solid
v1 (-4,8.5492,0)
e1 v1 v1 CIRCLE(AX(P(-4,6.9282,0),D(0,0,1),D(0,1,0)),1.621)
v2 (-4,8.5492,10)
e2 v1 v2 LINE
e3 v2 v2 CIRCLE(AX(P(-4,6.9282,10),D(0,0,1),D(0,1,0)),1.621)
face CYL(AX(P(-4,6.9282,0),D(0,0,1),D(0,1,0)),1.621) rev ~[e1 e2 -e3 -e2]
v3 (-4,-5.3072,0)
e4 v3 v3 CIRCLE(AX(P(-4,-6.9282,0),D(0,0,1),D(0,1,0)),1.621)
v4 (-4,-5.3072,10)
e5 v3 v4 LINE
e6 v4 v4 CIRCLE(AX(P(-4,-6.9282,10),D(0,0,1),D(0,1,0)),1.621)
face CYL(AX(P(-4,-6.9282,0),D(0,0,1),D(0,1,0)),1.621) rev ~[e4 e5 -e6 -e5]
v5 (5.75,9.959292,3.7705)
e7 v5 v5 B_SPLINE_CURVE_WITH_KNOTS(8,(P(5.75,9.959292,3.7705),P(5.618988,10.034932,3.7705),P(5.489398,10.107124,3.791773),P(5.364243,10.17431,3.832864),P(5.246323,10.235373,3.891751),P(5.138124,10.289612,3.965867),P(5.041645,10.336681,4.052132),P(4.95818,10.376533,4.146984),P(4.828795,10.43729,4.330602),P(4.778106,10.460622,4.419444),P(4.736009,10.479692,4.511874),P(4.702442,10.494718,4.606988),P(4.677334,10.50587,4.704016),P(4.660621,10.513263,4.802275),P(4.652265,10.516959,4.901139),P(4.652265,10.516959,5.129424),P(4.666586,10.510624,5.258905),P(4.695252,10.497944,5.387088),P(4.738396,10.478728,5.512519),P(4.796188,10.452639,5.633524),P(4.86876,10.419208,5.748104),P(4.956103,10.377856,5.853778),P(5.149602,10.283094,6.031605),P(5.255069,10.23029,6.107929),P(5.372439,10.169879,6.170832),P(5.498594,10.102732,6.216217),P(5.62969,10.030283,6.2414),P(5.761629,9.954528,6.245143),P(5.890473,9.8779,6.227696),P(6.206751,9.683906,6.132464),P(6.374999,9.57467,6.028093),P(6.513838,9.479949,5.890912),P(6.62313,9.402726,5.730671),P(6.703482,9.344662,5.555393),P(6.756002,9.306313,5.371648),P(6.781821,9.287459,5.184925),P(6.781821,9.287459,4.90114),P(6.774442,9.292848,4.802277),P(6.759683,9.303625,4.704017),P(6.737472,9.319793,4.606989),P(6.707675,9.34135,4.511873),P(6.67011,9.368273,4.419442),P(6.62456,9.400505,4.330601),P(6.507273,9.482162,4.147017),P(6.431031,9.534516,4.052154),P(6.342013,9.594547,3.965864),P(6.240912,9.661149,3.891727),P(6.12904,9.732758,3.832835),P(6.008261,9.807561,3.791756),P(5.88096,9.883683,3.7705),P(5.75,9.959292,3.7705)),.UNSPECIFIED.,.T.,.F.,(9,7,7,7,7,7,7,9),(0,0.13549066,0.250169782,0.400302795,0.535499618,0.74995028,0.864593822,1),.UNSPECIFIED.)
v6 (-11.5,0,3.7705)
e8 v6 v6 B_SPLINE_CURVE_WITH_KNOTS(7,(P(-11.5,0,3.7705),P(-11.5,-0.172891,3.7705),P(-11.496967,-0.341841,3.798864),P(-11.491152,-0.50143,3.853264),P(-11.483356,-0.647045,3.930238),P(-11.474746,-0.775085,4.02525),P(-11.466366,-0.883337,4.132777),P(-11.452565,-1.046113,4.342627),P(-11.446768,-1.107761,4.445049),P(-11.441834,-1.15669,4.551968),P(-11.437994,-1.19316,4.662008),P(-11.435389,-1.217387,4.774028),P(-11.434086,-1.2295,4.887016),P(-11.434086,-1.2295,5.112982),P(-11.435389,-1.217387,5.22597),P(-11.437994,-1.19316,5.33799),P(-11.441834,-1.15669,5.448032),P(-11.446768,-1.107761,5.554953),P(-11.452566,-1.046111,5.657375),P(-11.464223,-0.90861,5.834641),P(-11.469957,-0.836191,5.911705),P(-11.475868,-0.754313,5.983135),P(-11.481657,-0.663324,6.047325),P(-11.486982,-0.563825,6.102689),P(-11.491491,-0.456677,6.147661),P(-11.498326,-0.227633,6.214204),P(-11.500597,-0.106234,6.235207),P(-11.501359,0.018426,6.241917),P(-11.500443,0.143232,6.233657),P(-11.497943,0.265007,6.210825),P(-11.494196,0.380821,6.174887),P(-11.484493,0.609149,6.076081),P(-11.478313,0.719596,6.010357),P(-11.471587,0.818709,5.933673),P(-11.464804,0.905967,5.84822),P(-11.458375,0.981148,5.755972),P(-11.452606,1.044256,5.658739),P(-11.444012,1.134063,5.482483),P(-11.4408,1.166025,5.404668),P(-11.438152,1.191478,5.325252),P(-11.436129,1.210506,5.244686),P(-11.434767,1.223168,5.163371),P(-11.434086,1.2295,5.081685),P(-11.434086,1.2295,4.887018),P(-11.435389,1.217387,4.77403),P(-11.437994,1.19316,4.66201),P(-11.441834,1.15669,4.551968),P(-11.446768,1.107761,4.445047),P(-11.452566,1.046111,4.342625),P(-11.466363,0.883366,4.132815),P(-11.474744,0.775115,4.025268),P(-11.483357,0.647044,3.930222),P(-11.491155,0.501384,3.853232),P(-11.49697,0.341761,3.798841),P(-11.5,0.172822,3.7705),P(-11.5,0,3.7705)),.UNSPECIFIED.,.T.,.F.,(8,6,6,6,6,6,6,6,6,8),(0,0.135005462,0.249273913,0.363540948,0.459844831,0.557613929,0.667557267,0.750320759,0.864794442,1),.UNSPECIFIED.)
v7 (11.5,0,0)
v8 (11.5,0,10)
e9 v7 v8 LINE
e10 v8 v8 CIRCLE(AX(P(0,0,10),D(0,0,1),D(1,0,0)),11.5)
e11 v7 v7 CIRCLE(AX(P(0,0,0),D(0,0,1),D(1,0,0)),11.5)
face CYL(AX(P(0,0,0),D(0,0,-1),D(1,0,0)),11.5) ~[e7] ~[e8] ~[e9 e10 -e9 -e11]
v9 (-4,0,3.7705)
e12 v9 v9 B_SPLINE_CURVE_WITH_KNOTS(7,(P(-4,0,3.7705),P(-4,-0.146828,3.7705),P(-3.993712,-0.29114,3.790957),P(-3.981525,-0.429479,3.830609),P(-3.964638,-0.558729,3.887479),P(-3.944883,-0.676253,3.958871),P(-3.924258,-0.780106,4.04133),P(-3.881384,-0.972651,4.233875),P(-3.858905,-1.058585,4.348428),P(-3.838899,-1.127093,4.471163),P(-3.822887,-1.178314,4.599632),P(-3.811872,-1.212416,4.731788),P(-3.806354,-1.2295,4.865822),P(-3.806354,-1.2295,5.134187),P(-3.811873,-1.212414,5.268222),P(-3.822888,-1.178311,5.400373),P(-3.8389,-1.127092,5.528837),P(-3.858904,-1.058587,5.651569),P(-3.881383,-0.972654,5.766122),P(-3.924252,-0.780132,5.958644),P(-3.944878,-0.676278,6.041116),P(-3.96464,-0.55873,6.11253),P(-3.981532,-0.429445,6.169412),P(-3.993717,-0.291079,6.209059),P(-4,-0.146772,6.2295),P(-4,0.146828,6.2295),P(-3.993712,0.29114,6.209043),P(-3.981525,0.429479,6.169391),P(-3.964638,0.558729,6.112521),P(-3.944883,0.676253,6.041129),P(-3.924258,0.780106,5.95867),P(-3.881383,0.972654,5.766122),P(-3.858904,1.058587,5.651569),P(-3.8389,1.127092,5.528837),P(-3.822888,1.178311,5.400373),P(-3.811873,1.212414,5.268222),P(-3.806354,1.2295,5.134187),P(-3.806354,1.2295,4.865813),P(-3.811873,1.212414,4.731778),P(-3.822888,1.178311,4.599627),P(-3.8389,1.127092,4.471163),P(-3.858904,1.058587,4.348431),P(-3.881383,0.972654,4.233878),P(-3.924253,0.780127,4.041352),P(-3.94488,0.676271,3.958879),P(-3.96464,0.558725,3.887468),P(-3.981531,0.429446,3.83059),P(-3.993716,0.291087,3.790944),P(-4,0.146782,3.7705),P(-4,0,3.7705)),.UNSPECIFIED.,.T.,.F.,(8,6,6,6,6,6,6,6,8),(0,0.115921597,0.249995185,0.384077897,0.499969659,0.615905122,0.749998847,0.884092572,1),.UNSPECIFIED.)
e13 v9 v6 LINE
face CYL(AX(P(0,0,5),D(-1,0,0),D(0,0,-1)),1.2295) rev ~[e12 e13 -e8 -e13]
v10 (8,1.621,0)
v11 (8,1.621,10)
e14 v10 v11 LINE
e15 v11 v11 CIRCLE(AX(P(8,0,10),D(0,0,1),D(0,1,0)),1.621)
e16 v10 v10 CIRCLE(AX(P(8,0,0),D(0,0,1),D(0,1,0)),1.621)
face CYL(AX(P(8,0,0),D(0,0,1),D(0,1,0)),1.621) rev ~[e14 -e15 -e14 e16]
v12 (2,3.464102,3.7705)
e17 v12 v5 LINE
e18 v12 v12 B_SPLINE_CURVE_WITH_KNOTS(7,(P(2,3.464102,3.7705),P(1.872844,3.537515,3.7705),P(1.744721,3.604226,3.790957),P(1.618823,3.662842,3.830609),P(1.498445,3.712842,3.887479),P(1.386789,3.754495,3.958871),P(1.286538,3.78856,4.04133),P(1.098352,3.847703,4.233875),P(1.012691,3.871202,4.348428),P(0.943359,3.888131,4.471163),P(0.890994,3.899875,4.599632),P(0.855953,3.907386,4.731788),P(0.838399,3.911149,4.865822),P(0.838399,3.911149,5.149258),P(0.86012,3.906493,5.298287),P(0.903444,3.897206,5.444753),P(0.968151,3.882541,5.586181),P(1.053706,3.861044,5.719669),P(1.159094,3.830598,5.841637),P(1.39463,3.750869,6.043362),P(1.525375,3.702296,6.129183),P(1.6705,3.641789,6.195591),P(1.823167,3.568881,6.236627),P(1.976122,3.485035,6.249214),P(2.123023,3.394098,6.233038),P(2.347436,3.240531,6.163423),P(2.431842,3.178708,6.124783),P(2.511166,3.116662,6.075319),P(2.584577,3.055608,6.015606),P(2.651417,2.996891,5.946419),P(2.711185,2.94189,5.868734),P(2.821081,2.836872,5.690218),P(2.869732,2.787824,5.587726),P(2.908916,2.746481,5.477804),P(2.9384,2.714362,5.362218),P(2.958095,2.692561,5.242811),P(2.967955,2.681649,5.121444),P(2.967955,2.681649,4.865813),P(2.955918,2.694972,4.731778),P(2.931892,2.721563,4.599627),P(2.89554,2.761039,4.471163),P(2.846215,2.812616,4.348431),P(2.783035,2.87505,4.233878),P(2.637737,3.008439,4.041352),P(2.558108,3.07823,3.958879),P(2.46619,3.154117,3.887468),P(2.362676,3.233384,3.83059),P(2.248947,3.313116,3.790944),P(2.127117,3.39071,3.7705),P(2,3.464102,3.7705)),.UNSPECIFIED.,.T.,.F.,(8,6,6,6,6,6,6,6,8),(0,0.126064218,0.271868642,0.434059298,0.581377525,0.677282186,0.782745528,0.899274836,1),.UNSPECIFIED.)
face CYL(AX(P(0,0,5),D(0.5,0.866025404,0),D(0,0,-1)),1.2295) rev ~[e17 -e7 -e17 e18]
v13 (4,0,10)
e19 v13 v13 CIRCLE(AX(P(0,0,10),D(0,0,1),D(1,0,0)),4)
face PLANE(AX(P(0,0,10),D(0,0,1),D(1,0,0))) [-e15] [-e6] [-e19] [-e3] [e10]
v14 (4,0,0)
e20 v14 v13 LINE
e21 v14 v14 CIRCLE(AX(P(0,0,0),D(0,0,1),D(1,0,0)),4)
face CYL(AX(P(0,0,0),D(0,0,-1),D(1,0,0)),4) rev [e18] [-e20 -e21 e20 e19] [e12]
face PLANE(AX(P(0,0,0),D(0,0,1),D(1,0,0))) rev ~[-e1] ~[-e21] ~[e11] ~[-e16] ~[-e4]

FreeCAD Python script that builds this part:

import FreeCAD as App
import Part
import Sketcher
Q = App.Units.Quantity

doc = App.newDocument("Part")
body = doc.addObject("PartDesign::Body", "Body")

# Sketch on XY plane
sketch1 = doc.addObject("Sketcher::SketchObject", "Sketch")
body.addObject(sketch1)
sketch1.AttachmentSupport = (doc.XY_Plane, [""])
sketch1.MapMode = "FlatFace"
sketch1.addGeometry(Part.Circle(App.Vector(0, 0, 0), App.Vector(0, 0, 1), 11.5), False)
sketch1.addGeometry(Part.Circle(App.Vector(0, 0, 0), App.Vector(0, 0, 1), 4), False)
sketch1.addConstraint(Sketcher.Constraint("Coincident", 0, 3, -1, 1))
sketch1.addConstraint(Sketcher.Constraint("Coincident", 1, 3, -1, 1))
sketch1.addConstraint(Sketcher.Constraint("Diameter", 0, Q("23 mm")))
sketch1.addConstraint(Sketcher.Constraint("Diameter", 1, Q("8 mm")))
pad1 = doc.addObject("PartDesign::Pad", "Pad")
body.addObject(pad1)
pad1.Profile = sketch1
pad1.Length = 10

# Sketch on XY plane
sketch2 = doc.addObject("Sketcher::SketchObject", "Sketch001")
body.addObject(sketch2)
sketch2.AttachmentSupport = (doc.XY_Plane, [""])
sketch2.MapMode = "FlatFace"
sketch2.addGeometry(Part.Circle(App.Vector(8, 0, 0), App.Vector(0, 0, 1), 1.6), False)
sketch2.addGeometry(Part.Circle(App.Vector(-4, 6.9, 0), App.Vector(0, 0, 1), 1.6), False)
sketch2.addGeometry(Part.Circle(App.Vector(-4, -6.9, 0), App.Vector(0, 0, 1), 1.6), False)
sketch2.addConstraint(Sketcher.Constraint("Equal", 0, 1))
sketch2.addConstraint(Sketcher.Constraint("Equal", 1, 2))
sketch2.addConstraint(Sketcher.Constraint("Symmetric", 1, 3, 2, 3, -1))
sketch2.addConstraint(Sketcher.Constraint("PointOnObject", 0, 3, -1))
sketch2.addConstraint(Sketcher.Constraint("Diameter", 0, Q("3.242 mm")))
sketch2.addConstraint(Sketcher.Constraint("DistanceX", -1, 1, 0, 3, Q("8 mm")))
sketch2.addConstraint(Sketcher.Constraint("DistanceX", 1, 3, -1, 1, Q("4 mm")))
sketch2.addConstraint(Sketcher.Constraint("DistanceY", -1, 1, 1, 3, Q("6.9282 mm")))
doc.recompute()
hole = doc.addObject("PartDesign::Hole", "Hole")
body.addObject(hole)
hole.Profile = sketch2
hole.ThreadType = "None"
hole.Diameter = 3.242
hole.DepthType = "Dimension"
hole.Depth = 15
hole.DrillPoint = "Angled"
hole.DrillPointAngle = 118
hole.Reversed = True

# Sketch on YZ plane
sketch3 = doc.addObject("Sketcher::SketchObject", "Sketch002")
body.addObject(sketch3)
sketch3.AttachmentSupport = (doc.YZ_Plane, [""])
sketch3.MapMode = "FlatFace"
sketch3.addGeometry(Part.Circle(App.Vector(0, 5, 0), App.Vector(0, 0, 1), 1.2), False)
sketch3.addConstraint(Sketcher.Constraint("PointOnObject", 0, 3, -2))
sketch3.addConstraint(Sketcher.Constraint("Diameter", 0, Q("2.459 mm")))
sketch3.addConstraint(Sketcher.Constraint("DistanceY", -1, 1, 0, 3, Q("5 mm")))
doc.recompute()
hole2 = doc.addObject("PartDesign::Hole", "Hole001")
body.addObject(hole2)
hole2.Profile = sketch3
hole2.ThreadType = "None"
hole2.Diameter = 2.459
hole2.DepthType = "ThroughAll"

# Sketch on an angled plane
sketch4 = doc.addObject("Sketcher::SketchObject", "Sketch003")
body.addObject(sketch4)
sketch4.Placement = App.Placement(App.Vector(0, 0, 0), App.Rotation(App.Vector(0.866025404, -0.5, 0), App.Vector(0, 0, 1), App.Vector(-0.5, -0.866025404, 0), "ZXY"))
sketch4.addGeometry(Part.Circle(App.Vector(0, 5, 0), App.Vector(0, 0, 1), 1.2), False)
sketch4.addConstraint(Sketcher.Constraint("PointOnObject", 0, 3, -2))
sketch4.addConstraint(Sketcher.Constraint("Diameter", 0, Q("2.459 mm")))
sketch4.addConstraint(Sketcher.Constraint("DistanceY", -1, 1, 0, 3, Q("5 mm")))
doc.recompute()
hole3 = doc.addObject("PartDesign::Hole", "Hole002")
body.addObject(hole3)
hole3.Profile = sketch4
hole3.ThreadType = "None"
hole3.Diameter = 2.459
hole3.DepthType = "ThroughAll"

doc.recompute()
